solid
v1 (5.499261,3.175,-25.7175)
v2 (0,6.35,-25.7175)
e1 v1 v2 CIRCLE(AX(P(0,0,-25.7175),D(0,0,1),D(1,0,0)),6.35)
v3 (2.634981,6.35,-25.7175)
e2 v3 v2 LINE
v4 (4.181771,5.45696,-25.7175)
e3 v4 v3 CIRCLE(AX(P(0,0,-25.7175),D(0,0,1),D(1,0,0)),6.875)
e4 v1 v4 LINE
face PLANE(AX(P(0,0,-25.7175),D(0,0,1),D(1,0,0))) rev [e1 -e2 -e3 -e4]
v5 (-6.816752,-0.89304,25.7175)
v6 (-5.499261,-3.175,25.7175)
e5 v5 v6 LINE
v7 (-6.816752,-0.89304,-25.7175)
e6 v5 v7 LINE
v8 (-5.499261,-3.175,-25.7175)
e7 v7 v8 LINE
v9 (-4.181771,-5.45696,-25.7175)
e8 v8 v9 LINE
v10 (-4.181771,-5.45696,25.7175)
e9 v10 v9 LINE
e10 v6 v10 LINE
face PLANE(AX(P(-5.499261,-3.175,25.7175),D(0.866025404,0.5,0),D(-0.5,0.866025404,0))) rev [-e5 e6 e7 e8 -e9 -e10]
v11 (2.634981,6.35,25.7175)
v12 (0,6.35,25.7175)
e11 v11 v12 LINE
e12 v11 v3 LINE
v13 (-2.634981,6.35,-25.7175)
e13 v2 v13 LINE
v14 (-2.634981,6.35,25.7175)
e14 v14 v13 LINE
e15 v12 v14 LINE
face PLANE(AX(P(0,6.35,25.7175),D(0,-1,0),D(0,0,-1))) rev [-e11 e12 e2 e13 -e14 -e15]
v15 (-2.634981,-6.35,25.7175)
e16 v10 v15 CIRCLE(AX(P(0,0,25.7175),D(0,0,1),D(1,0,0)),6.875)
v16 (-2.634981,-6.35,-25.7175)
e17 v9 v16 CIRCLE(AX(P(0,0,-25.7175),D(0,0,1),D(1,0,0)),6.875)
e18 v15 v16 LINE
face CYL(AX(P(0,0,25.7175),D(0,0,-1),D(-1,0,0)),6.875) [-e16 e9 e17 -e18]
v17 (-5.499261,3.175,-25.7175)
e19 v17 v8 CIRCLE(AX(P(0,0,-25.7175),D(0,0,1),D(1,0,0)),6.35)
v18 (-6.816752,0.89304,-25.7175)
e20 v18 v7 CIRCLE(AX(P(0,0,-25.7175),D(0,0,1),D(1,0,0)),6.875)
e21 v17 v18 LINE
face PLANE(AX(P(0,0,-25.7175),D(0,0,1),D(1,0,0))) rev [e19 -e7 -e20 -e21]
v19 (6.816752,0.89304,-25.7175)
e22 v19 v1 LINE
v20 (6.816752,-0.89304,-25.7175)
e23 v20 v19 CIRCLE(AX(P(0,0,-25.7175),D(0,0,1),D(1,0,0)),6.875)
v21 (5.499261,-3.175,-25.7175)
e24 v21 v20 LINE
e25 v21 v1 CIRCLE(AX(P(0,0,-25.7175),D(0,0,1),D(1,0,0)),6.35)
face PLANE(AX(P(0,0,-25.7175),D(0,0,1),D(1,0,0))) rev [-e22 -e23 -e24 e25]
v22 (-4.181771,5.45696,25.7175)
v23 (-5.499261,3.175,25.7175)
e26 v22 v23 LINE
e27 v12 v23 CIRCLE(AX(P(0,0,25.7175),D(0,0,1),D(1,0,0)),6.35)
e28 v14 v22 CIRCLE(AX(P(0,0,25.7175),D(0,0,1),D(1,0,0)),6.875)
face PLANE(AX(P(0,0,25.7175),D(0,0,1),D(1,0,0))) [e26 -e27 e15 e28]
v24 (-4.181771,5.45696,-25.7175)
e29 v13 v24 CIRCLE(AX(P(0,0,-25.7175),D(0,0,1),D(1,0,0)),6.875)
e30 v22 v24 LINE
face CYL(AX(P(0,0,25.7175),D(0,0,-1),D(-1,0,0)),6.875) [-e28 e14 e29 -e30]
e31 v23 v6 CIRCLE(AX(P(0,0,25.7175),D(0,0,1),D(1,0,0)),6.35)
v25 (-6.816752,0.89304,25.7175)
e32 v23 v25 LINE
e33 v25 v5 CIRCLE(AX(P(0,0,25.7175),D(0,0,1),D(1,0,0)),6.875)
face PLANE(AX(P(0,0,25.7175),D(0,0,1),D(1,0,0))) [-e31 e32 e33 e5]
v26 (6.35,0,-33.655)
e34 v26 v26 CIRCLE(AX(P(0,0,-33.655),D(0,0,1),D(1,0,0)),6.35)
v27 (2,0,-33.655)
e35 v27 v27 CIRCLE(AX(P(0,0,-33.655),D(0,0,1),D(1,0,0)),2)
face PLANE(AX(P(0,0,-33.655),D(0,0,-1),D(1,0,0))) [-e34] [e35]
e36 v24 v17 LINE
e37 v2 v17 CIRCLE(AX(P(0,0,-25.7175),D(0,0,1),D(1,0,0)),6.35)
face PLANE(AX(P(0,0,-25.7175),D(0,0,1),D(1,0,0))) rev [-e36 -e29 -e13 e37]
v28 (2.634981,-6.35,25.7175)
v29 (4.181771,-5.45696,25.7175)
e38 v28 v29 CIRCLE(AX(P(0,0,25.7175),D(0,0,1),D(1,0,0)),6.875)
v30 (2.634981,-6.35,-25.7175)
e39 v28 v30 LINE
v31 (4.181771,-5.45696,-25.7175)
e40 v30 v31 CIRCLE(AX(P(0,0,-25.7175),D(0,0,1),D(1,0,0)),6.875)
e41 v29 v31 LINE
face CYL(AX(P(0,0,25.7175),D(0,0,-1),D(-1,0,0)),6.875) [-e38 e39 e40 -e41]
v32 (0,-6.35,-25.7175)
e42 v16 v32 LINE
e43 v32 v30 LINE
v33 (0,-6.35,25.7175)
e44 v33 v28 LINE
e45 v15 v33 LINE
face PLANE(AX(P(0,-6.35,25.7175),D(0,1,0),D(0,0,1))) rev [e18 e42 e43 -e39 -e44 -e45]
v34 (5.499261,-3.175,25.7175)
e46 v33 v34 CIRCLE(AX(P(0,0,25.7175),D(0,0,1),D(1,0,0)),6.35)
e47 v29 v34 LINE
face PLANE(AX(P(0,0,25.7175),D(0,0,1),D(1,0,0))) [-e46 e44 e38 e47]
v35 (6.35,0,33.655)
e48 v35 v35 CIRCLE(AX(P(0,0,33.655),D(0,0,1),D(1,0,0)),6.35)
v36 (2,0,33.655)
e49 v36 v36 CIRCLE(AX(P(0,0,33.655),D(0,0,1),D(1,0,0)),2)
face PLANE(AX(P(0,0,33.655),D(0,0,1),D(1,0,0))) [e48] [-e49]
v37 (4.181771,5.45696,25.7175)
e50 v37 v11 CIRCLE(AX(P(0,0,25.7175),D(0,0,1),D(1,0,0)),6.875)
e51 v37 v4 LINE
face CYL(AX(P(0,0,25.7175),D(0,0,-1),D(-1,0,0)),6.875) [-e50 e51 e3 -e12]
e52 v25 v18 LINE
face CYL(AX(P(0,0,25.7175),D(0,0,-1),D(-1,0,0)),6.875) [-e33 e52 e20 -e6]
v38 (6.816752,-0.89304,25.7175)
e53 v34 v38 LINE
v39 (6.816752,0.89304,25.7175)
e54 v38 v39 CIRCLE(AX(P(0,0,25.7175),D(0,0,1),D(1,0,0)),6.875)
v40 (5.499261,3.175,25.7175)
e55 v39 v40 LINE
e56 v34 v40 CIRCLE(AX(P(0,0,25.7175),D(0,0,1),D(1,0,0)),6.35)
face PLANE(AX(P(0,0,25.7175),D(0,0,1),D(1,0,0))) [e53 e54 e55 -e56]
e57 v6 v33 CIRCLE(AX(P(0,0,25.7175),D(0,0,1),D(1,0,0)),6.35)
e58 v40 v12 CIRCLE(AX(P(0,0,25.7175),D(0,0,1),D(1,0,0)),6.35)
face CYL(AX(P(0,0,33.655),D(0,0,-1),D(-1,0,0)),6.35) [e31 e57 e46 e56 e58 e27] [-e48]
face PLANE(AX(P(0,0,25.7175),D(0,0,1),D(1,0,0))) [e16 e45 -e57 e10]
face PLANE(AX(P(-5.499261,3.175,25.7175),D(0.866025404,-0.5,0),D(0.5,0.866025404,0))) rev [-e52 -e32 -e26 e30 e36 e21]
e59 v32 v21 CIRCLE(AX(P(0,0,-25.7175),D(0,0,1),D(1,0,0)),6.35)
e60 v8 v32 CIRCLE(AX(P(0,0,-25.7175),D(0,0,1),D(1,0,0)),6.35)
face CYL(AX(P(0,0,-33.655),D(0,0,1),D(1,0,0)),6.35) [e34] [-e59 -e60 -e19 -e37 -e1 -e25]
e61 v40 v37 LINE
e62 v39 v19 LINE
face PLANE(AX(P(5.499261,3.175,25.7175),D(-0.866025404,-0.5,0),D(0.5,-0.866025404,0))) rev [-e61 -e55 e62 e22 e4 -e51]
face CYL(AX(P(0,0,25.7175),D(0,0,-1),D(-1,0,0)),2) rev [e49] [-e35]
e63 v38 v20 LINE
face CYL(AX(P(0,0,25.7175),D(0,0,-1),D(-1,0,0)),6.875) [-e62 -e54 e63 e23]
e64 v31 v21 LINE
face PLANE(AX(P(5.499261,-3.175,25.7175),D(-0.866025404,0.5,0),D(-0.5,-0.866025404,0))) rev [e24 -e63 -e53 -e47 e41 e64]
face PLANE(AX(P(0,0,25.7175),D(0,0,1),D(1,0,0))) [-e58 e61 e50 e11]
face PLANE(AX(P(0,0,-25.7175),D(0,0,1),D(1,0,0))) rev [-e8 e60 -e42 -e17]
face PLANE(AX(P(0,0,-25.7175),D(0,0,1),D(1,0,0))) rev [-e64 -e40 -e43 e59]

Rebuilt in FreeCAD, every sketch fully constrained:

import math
import FreeCAD as App
import Part
import Sketcher
from FreeCAD import Vector
Q = App.Units.Quantity

doc = App.newDocument("Part")
body = doc.addObject("PartDesign::Body", "Body")

# Sketch on XY plane
sketch1 = body.newObject("Sketcher::SketchObject", "Sketch")
sketch1.AttachmentSupport = (doc.getObject("XY_Plane"), [""])
sketch1.MapMode = "FlatFace"
sketch1.addGeometry([
    Part.ArcOfCircle(Part.Circle(Vector(0, 0, 0), Vector(0, 0, 1), 6.875), math.radians(52.536379), math.radians(67.463621)),  # 0
    Part.LineSegment(Vector(2.634981, 6.35, 0), Vector(-2.634981, 6.35, 0)),  # 1
    Part.ArcOfCircle(Part.Circle(Vector(0, 0, 0), Vector(0, 0, 1), 6.875), math.radians(112.536379), math.radians(127.463621)),  # 2
    Part.LineSegment(Vector(-4.181771, 5.45696, 0), Vector(-6.816752, 0.89304, 0)),  # 3
    Part.ArcOfCircle(Part.Circle(Vector(0, 0, 0), Vector(0, 0, 1), 6.875), math.radians(172.536379), math.radians(187.463621)),  # 4
    Part.LineSegment(Vector(-6.816752, -0.89304, 0), Vector(-4.181771, -5.45696, 0)),  # 5
    Part.ArcOfCircle(Part.Circle(Vector(0, 0, 0), Vector(0, 0, 1), 6.875), math.radians(-127.463621), math.radians(-112.536379)),  # 6
    Part.LineSegment(Vector(-2.634981, -6.35, 0), Vector(2.634981, -6.35, 0)),  # 7
    Part.ArcOfCircle(Part.Circle(Vector(0, 0, 0), Vector(0, 0, 1), 6.875), math.radians(-67.463621), math.radians(-52.536379)),  # 8
    Part.LineSegment(Vector(4.181771, -5.45696, 0), Vector(6.816752, -0.89304, 0)),  # 9
    Part.ArcOfCircle(Part.Circle(Vector(0, 0, 0), Vector(0, 0, 1), 6.875), math.radians(-7.463621), math.radians(0)),  # 10
    Part.ArcOfCircle(Part.Circle(Vector(0, 0, 0), Vector(0, 0, 1), 6.875), math.radians(0), math.radians(7.463621)),  # 11
    Part.LineSegment(Vector(6.816752, 0.89304, 0), Vector(4.181771, 5.45696, 0)),  # 12
    Part.Circle(Vector(0, 0, 0), Vector(0, 0, 1), 2),  # 13
], False)
sketch1.addConstraint([
    Sketcher.Constraint("Coincident", 0, 2, 1, 1),
    Sketcher.Constraint("Coincident", 1, 2, 2, 1),
    Sketcher.Constraint("Coincident", 2, 2, 3, 1),
    Sketcher.Constraint("Coincident", 3, 2, 4, 1),
    Sketcher.Constraint("Coincident", 4, 2, 5, 1),
    Sketcher.Constraint("Coincident", 5, 2, 6, 1),
    Sketcher.Constraint("Coincident", 6, 2, 7, 1),
    Sketcher.Constraint("Coincident", 7, 2, 8, 1),
    Sketcher.Constraint("Coincident", 8, 2, 9, 1),
    Sketcher.Constraint("Coincident", 9, 2, 10, 1),
    Sketcher.Constraint("Tangent", 10, 2, 11, 1),
    Sketcher.Constraint("Coincident", 11, 2, 12, 1),
    Sketcher.Constraint("Coincident", 12, 2, 0, 1),
    Sketcher.Constraint("Horizontal", 1),
    Sketcher.Constraint("Horizontal", 7),
    Sketcher.Constraint("Coincident", 0, 3, -1, 1),
    Sketcher.Constraint("Coincident", 2, 3, -1, 1),
    Sketcher.Constraint("Coincident", 4, 3, -1, 1),
    Sketcher.Constraint("Coincident", 6, 3, -1, 1),
    Sketcher.Constraint("Coincident", 8, 3, -1, 1),
    Sketcher.Constraint("Coincident", 10, 3, -1, 1),
    Sketcher.Constraint("Coincident", 13, 3, -1, 1),
    Sketcher.Constraint("Equal", 0, 2),
    Sketcher.Constraint("Equal", 2, 4),
    Sketcher.Constraint("Equal", 4, 6),
    Sketcher.Constraint("Equal", 6, 8),
    Sketcher.Constraint("Equal", 8, 10),
    Sketcher.Constraint("Equal", 10, 11),
    Sketcher.Constraint("PointOnObject", 10, 2, -1),
    Sketcher.Constraint("Parallel", 3, 9),
    Sketcher.Constraint("Parallel", 5, 12),
    Sketcher.Constraint("Horizontal", 5, 2, 8, 2),
    Sketcher.Constraint("Horizontal", 4, 2, 9, 2),
    Sketcher.Constraint("Horizontal", 3, 2, 11, 2),
    Sketcher.Constraint("Vertical", 3, 2, 4, 2),
    Sketcher.Constraint("Vertical", 1, 2, 6, 2),
    Sketcher.Constraint("Angle", 3, Q("-120 deg")),
    Sketcher.Constraint("Diameter", 13, 4.0),
    Sketcher.Constraint("DistanceY", -1, 1, 0, 2, Q("0.25 in")),
    Sketcher.Constraint("Radius", 0, 6.875),
    Sketcher.Constraint("Distance", 3, 5.269962),
])
pad1 = body.newObject("PartDesign::Pad", "Pad")
pad1.Profile = sketch1
pad1.Length = Q("2.025 in")
pad1.Midplane = True

# Sketch on XY plane
sketch2 = body.newObject("Sketcher::SketchObject", "Sketch001")
sketch2.AttachmentSupport = (doc.getObject("XY_Plane"), [""])
sketch2.MapMode = "FlatFace"
sketch2.AttachmentOffset = App.Placement(Vector(0, 0, 1.0125 * 25.4), App.Rotation())
sketch2.addGeometry([
    Part.Circle(Vector(0, 0, 0), Vector(0, 0, 1), 6.35),
    Part.Circle(Vector(0, 0, 0), Vector(0, 0, 1), 2),
], False)
sketch2.addConstraint([
    Sketcher.Constraint("Coincident", 0, 3, -1, 1),
    Sketcher.Constraint("Coincident", 1, 3, -1, 1),
    Sketcher.Constraint("Diameter", 0, Q("0.5 in")),
    Sketcher.Constraint("Diameter", 1, 4.0),
])
pad2 = body.newObject("PartDesign::Pad", "Pad001")
pad2.Profile = sketch2
pad2.Length = Q("0.3125 in")
doc.recompute()

mirrored = body.newObject("PartDesign::Mirrored", "Mirrored")
mirrored.Originals = [pad2]
mirrored.MirrorPlane = (doc.getObject("XY_Plane"), [""])
body.Tip = mirrored

doc.recompute()
